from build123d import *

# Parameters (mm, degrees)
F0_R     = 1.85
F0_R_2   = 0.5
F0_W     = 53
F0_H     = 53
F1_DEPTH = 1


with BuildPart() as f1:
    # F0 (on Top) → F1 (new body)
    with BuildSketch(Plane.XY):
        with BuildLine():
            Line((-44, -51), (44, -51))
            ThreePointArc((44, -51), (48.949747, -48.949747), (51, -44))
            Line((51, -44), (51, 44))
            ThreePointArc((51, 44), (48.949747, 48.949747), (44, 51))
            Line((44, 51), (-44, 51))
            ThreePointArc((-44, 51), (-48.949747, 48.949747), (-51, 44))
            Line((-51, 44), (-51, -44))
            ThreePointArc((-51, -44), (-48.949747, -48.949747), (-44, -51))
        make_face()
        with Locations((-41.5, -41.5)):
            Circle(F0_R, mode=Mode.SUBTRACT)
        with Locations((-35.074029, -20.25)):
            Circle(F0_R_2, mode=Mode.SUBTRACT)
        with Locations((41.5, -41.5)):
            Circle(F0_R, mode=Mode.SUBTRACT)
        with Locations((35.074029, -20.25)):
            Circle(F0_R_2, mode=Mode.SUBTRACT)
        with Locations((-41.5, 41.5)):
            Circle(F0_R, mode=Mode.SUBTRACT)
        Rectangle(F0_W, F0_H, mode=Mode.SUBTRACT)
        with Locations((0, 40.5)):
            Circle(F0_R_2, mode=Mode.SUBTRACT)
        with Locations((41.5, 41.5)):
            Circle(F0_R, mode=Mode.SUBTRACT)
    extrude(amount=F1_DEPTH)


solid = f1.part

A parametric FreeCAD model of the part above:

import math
import FreeCAD as App
import Part
import Sketcher

V = App.Vector


def add_polygon(sketch, points):
    """Adds a closed chain of lines whose ends are joined by coincident constraints."""
    first, n = sketch.GeometryCount, len(points)
    for a, b in zip(points, points[1:] + points[:1]):
        sketch.addGeometry(Part.LineSegment(App.Vector(*a, 0), App.Vector(*b, 0)), False)
    for i in range(n):
        sketch.addConstraint(Sketcher.Constraint("Coincident", first + i, 2, first + (i + 1) % n, 1))

doc = App.newDocument("Part")
body = doc.addObject("PartDesign::Body", "Body")

sketch1 = body.newObject("Sketcher::SketchObject", "Sketch")
sketch1.AttachmentSupport = (doc.getObject("XY_Plane"), [""])
sketch1.MapMode = "FlatFace"
sketch1.addGeometry(Part.LineSegment(V(-44, -51, 0), V(44, -51, 0)), False)
sketch1.addGeometry(Part.ArcOfCircle(Part.Circle(V(44, -44, 0), V(0, 0, 1), 7), math.radians(-90), math.radians(0)), False)
sketch1.addGeometry(Part.LineSegment(V(51, -44, 0), V(51, 44, 0)), False)
sketch1.addGeometry(Part.ArcOfCircle(Part.Circle(V(44, 44, 0), V(0, 0, 1), 7), math.radians(0), math.radians(90)), False)
sketch1.addGeometry(Part.LineSegment(V(44, 51, 0), V(-44, 51, 0)), False)
sketch1.addGeometry(Part.ArcOfCircle(Part.Circle(V(-44, 44, 0), V(0, 0, 1), 7), math.radians(90), math.radians(180)), False)
sketch1.addGeometry(Part.LineSegment(V(-51, 44, 0), V(-51, -44, 0)), False)
sketch1.addGeometry(Part.ArcOfCircle(Part.Circle(V(-44, -44, 0), V(0, 0, 1), 7), math.radians(-180), math.radians(-90)), False)
sketch1.addGeometry(Part.Circle(V(-41.5, -41.5, 0), V(0, 0, 1), 1.9), False)
sketch1.addGeometry(Part.Circle(V(-35.1, -20.2, 0), V(0, 0, 1), 0.5), False)
sketch1.addGeometry(Part.Circle(V(41.5, -41.5, 0), V(0, 0, 1), 1.9), False)
sketch1.addGeometry(Part.Circle(V(35.1, -20.2, 0), V(0, 0, 1), 0.5), False)
sketch1.addGeometry(Part.Circle(V(-41.5, 41.5, 0), V(0, 0, 1), 1.9), False)
add_polygon(sketch1, [(26.5, -26.5), (-26.5, -26.5), (-26.5, 26.5), (26.5, 26.5)])
sketch1.addGeometry(Part.Circle(V(0, 40.5, 0), V(0, 0, 1), 0.5), False)
sketch1.addGeometry(Part.Circle(V(41.5, 41.5, 0), V(0, 0, 1), 1.9), False)
sketch1.addConstraint(Sketcher.Constraint("Tangent", 0, 2, 1, 1))
sketch1.addConstraint(Sketcher.Constraint("Tangent", 1, 2, 2, 1))
sketch1.addConstraint(Sketcher.Constraint("Tangent", 2, 2, 3, 1))
sketch1.addConstraint(Sketcher.Constraint("Tangent", 3, 2, 4, 1))
sketch1.addConstraint(Sketcher.Constraint("Tangent", 4, 2, 5, 1))
sketch1.addConstraint(Sketcher.Constraint("Tangent", 5, 2, 6, 1))
sketch1.addConstraint(Sketcher.Constraint("Tangent", 6, 2, 7, 1))
sketch1.addConstraint(Sketcher.Constraint("Tangent", 7, 2, 0, 1))
sketch1.addConstraint(Sketcher.Constraint("Horizontal", 0))
sketch1.addConstraint(Sketcher.Constraint("Vertical", 2))
sketch1.addConstraint(Sketcher.Constraint("Horizontal", 4))
sketch1.addConstraint(Sketcher.Constraint("Vertical", 6))
sketch1.addConstraint(Sketcher.Constraint("Horizontal", 13))
sketch1.addConstraint(Sketcher.Constraint("Vertical", 14))
sketch1.addConstraint(Sketcher.Constraint("Horizontal", 15))
sketch1.addConstraint(Sketcher.Constraint("Vertical", 16))
sketch1.addConstraint(Sketcher.Constraint("Equal", 1, 3))
sketch1.addConstraint(Sketcher.Constraint("Equal", 3, 5))
sketch1.addConstraint(Sketcher.Constraint("Equal", 5, 7))
sketch1.addConstraint(Sketcher.Constraint("Equal", 8, 10))
sketch1.addConstraint(Sketcher.Constraint("Equal", 9, 11))
sketch1.addConstraint(Sketcher.Constraint("Equal", 10, 12))
sketch1.addConstraint(Sketcher.Constraint("Equal", 11, 17))
sketch1.addConstraint(Sketcher.Constraint("Equal", 12, 18))
sketch1.addConstraint(Sketcher.Constraint("Symmetric", 1, 3, 5, 3, -1, 1))
sketch1.addConstraint(Sketcher.Constraint("Symmetric", 10, 3, 12, 3, -1, 1))
sketch1.addConstraint(Sketcher.Constraint("Symmetric", 8, 3, 18, 3, -1, 1))
sketch1.addConstraint(Sketcher.Constraint("Symmetric", 13, 2, 15, 2, -1, 1))
sketch1.addConstraint(Sketcher.Constraint("Symmetric", 8, 3, 10, 3, -2))
sketch1.addConstraint(Sketcher.Constraint("Symmetric", 9, 3, 11, 3, -2))
sketch1.addConstraint(Sketcher.Constraint("PointOnObject", 17, 3, -2))
sketch1.addConstraint(Sketcher.Constraint("Equal", 4, 2))
sketch1.addConstraint(Sketcher.Constraint("Equal", 15, 14))
sketch1.addConstraint(Sketcher.Constraint("Diameter", 9, 1.0))
sketch1.addConstraint(Sketcher.Constraint("Radius", 1, 7.000002))
sketch1.addConstraint(Sketcher.Constraint("Diameter", 8, 3.7))
sketch1.addConstraint(Sketcher.Constraint("DistanceX", 0, 1, 0, 2, 88.0))
sketch1.addConstraint(Sketcher.Constraint("DistanceX", 13, 2, 13, 1, 53.0))
sketch1.addConstraint(Sketcher.Constraint("DistanceX", 8, 3, 10, 3, 83.0))
sketch1.addConstraint(Sketcher.Constraint("DistanceY", 8, 3, 12, 3, 83.0))
sketch1.addConstraint(Sketcher.Constraint("DistanceY", 17, 3, 12, 3, 1.0))
sketch1.addConstraint(Sketcher.Constraint("DistanceY", 9, 3, -1, 1, 20.25))
sketch1.addConstraint(Sketcher.Constraint("DistanceX", 9, 3, -1, 1, 35.074029))
pad1 = body.newObject("PartDesign::Pad", "Pad")
pad1.Profile = sketch1
pad1.Length = 1

doc.recompute()
